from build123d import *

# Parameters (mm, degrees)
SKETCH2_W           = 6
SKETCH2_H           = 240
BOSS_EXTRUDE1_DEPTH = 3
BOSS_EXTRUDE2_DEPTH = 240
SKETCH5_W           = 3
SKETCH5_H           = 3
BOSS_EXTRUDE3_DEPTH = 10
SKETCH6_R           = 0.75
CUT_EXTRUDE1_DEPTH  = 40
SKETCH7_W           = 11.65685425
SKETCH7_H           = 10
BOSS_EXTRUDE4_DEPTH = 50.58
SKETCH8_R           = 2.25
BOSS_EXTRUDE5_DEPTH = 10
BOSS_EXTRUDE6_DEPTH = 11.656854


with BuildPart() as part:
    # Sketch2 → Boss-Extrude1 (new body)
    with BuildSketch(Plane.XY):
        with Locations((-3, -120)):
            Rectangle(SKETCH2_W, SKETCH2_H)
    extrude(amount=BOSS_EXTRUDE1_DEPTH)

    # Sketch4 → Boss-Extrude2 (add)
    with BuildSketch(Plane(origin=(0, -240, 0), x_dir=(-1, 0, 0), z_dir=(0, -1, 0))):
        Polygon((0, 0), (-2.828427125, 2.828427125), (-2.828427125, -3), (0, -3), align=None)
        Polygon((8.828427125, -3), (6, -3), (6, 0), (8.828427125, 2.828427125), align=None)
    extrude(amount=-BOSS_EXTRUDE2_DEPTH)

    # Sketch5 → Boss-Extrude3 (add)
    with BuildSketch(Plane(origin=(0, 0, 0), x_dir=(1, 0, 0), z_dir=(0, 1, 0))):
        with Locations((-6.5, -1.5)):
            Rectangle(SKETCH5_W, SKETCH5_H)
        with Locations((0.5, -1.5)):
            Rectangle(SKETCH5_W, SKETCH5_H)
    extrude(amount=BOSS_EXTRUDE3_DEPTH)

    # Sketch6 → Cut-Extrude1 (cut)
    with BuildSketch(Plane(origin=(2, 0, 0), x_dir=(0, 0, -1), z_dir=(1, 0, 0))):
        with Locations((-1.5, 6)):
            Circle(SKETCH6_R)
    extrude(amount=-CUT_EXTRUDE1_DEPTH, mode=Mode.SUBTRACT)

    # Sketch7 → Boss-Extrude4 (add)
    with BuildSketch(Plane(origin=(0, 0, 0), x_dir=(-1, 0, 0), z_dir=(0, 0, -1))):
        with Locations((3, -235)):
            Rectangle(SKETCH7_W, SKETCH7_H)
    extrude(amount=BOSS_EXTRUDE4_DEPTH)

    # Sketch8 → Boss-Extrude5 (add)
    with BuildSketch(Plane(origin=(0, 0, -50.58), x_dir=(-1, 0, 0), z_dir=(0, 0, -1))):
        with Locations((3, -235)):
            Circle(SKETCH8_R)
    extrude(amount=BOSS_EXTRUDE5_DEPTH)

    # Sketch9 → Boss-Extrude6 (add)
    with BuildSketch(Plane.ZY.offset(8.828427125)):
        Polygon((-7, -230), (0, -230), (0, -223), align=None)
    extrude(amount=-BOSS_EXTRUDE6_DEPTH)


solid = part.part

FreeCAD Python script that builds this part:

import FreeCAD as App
import Part
import Sketcher
from FreeCAD import Vector
Q = App.Units.Quantity


def add_polygon(sketch, points):
    """Adds a closed chain of lines whose ends are joined by coincident constraints."""
    first, n = sketch.GeometryCount, len(points)
    for a, b in zip(points, points[1:] + points[:1]):
        sketch.addGeometry(Part.LineSegment(App.Vector(*a, 0), App.Vector(*b, 0)), False)
    for i in range(n):
        sketch.addConstraint(Sketcher.Constraint("Coincident", first + i, 2, first + (i + 1) % n, 1))

doc = App.newDocument("Part")
body = doc.addObject("PartDesign::Body", "Body")

sketch1 = body.newObject("Sketcher::SketchObject", "Sketch")
sketch1.AttachmentSupport = (doc.getObject("XY_Plane"), [""])
sketch1.MapMode = "FlatFace"
add_polygon(sketch1, [(-6, 0), (-6, -240), (0, -240), (0, 0)])
sketch1.addConstraint(Sketcher.Constraint("Vertical", 0))
sketch1.addConstraint(Sketcher.Constraint("Horizontal", 1))
sketch1.addConstraint(Sketcher.Constraint("Vertical", 2))
sketch1.addConstraint(Sketcher.Constraint("Horizontal", 3))
sketch1.addConstraint(Sketcher.Constraint("Coincident", 2, 2, -1, 1))
sketch1.addConstraint(Sketcher.Constraint("DistanceX", 1, 1, 1, 2, Q("6 mm")))
sketch1.addConstraint(Sketcher.Constraint("DistanceY", 0, 2, 0, 1, Q("240 mm")))
pad1 = body.newObject("PartDesign::Pad", "Pad")
pad1.Profile = sketch1
pad1.Length = 3

sketch2 = body.newObject("Sketcher::SketchObject", "Sketch001")
sketch2.AttachmentSupport = (doc.getObject("XZ_Plane"), [""])
sketch2.MapMode = "FlatFace"
sketch2.AttachmentOffset = App.Placement(Vector(0, 0, 240), App.Rotation())
add_polygon(sketch2, [(0, 0), (2.8, -2.8), (2.8, 3), (0, 3)])
add_polygon(sketch2, [(-6, 3), (-8.8, 3), (-8.8, -2.8), (-6, 0)])
sketch2.addConstraint(Sketcher.Constraint("Vertical", 1))
sketch2.addConstraint(Sketcher.Constraint("Horizontal", 2))
sketch2.addConstraint(Sketcher.Constraint("Vertical", 3))
sketch2.addConstraint(Sketcher.Constraint("Horizontal", 4))
sketch2.addConstraint(Sketcher.Constraint("Vertical", 5))
sketch2.addConstraint(Sketcher.Constraint("Vertical", 7))
sketch2.addConstraint(Sketcher.Constraint("Coincident", 3, 2, -1, 1))
sketch2.addConstraint(Sketcher.Constraint("PointOnObject", 6, 2, -1))
sketch2.addConstraint(Sketcher.Constraint("Perpendicular", 0, 6))
sketch2.addConstraint(Sketcher.Constraint("Horizontal", 2, 2, 4, 2))
sketch2.addConstraint(Sketcher.Constraint("Horizontal", 0, 2, 5, 2))
sketch2.addConstraint(Sketcher.Constraint("Equal", 2, 4))
sketch2.addConstraint(Sketcher.Constraint("DistanceY", 3, 2, 3, 1, Q("3 mm")))
sketch2.addConstraint(Sketcher.Constraint("Distance", 0, Q("4 mm")))
sketch2.addConstraint(Sketcher.Constraint("DistanceX", 6, 2, -1, 1, Q("6 mm")))
pad2 = body.newObject("PartDesign::Pad", "Pad001")
pad2.Profile = sketch2
pad2.Length = 240
pad2.Reversed = True

sketch3 = body.newObject("Sketcher::SketchObject", "Sketch002")
sketch3.AttachmentSupport = (doc.getObject("XZ_Plane"), [""])
sketch3.MapMode = "FlatFace"
add_polygon(sketch3, [(-8, 0), (-8, 3), (-5, 3), (-5, 0)])
add_polygon(sketch3, [(-1, 0), (-1, 3), (2, 3), (2, 0)])
sketch3.addConstraint(Sketcher.Constraint("Vertical", 0))
sketch3.addConstraint(Sketcher.Constraint("Horizontal", 1))
sketch3.addConstraint(Sketcher.Constraint("Vertical", 2))
sketch3.addConstraint(Sketcher.Constraint("Horizontal", 3))
sketch3.addConstraint(Sketcher.Constraint("Vertical", 4))
sketch3.addConstraint(Sketcher.Constraint("Horizontal", 5))
sketch3.addConstraint(Sketcher.Constraint("Vertical", 6))
sketch3.addConstraint(Sketcher.Constraint("Horizontal", 7))
sketch3.addConstraint(Sketcher.Constraint("PointOnObject", 2, 2, -1))
sketch3.addConstraint(Sketcher.Constraint("PointOnObject", 6, 2, -1))
sketch3.addConstraint(Sketcher.Constraint("Horizontal", 1, 2, 4, 2))
sketch3.addConstraint(Sketcher.Constraint("Equal", 3, 5))
sketch3.addConstraint(Sketcher.Constraint("Equal", 7, 0))
sketch3.addConstraint(Sketcher.Constraint("DistanceX", 1, 1, 1, 2, Q("3 mm")))
sketch3.addConstraint(Sketcher.Constraint("DistanceX", 0, 2, -1, 1, Q("8 mm")))
sketch3.addConstraint(Sketcher.Constraint("DistanceX", 4, 2, -1, 1, Q("1 mm")))
pad3 = body.newObject("PartDesign::Pad", "Pad002")
pad3.Profile = sketch3
pad3.Length = 10
pad3.Reversed = True

sketch4 = body.newObject("Sketcher::SketchObject", "Sketch003")
sketch4.AttachmentSupport = (doc.getObject("YZ_Plane"), [""])
sketch4.MapMode = "FlatFace"
sketch4.AttachmentOffset = App.Placement(Vector(0, 0, 2), App.Rotation())
sketch4.addGeometry(Part.Circle(Vector(6, 1.5, 0), Vector(0, 0, 1), 0.8), False)
sketch4.addConstraint(Sketcher.Constraint("Diameter", 0, Q("1.5 mm")))
sketch4.addConstraint(Sketcher.Constraint("DistanceX", -1, 1, 0, 3, Q("6 mm")))
sketch4.addConstraint(Sketcher.Constraint("DistanceY", -1, 1, 0, 3, Q("1.5 mm")))
pocket1 = body.newObject("PartDesign::Pocket", "Pocket")
pocket1.Profile = sketch4
pocket1.Length = 40

sketch5 = body.newObject("Sketcher::SketchObject", "Sketch004")
sketch5.AttachmentSupport = (doc.getObject("XY_Plane"), [""])
sketch5.MapMode = "FlatFace"
add_polygon(sketch5, [(3, -230), (3, -240), (-9, -240), (-9, -230)])
sketch5.addConstraint(Sketcher.Constraint("Vertical", 0))
sketch5.addConstraint(Sketcher.Constraint("Horizontal", 1))
sketch5.addConstraint(Sketcher.Constraint("Vertical", 2))
sketch5.addConstraint(Sketcher.Constraint("Horizontal", 3))
sketch5.addConstraint(Sketcher.Constraint("DistanceY", 0, 2, 0, 1, Q("10 mm")))
sketch5.addConstraint(Sketcher.Constraint("DistanceY", 0, 2, -1, 1, Q("240 mm")))
sketch5.addConstraint(Sketcher.Constraint("DistanceX", 1, 2, 1, 1, Q("11.656854 mm")))
sketch5.addConstraint(Sketcher.Constraint("DistanceX", -1, 1, 0, 2, Q("2.828427 mm")))
pad4 = body.newObject("PartDesign::Pad", "Pad003")
pad4.Profile = sketch5
pad4.Length = 50.58
pad4.Reversed = True

sketch6 = body.newObject("Sketcher::SketchObject", "Sketch005")
sketch6.AttachmentSupport = (doc.getObject("XY_Plane"), [""])
sketch6.MapMode = "FlatFace"
sketch6.AttachmentOffset = App.Placement(Vector(0, 0, -50.58), App.Rotation())
sketch6.addGeometry(Part.Circle(Vector(-3, -235, 0), Vector(0, 0, 1), 2.2), False)
sketch6.addConstraint(Sketcher.Constraint("Diameter", 0, Q("4.5 mm")))
sketch6.addConstraint(Sketcher.Constraint("DistanceX", 0, 3, -1, 1, Q("3 mm")))
sketch6.addConstraint(Sketcher.Constraint("DistanceY", 0, 3, -1, 1, Q("235 mm")))
pad5 = body.newObject("PartDesign::Pad", "Pad004")
pad5.Profile = sketch6
pad5.Length = 10
pad5.Reversed = True

sketch7 = body.newObject("Sketcher::SketchObject", "Sketch006")
sketch7.AttachmentSupport = (doc.getObject("YZ_Plane"), [""])
sketch7.MapMode = "FlatFace"
sketch7.AttachmentOffset = App.Placement(Vector(0, 0, -8.828427), App.Rotation())
add_polygon(sketch7, [(-230, -7), (-230, 0), (-223, 0)])
sketch7.addConstraint(Sketcher.Constraint("Vertical", 0))
sketch7.addConstraint(Sketcher.Constraint("Horizontal", 1))
sketch7.addConstraint(Sketcher.Constraint("PointOnObject", 0, 2, -1))
sketch7.addConstraint(Sketcher.Constraint("Equal", 1, 0))
sketch7.addConstraint(Sketcher.Constraint("DistanceX", 1, 1, 1, 2, Q("7 mm")))
sketch7.addConstraint(Sketcher.Constraint("DistanceX", 0, 2, -1, 1, Q("230 mm")))
pad6 = body.newObject("PartDesign::Pad", "Pad005")
pad6.Profile = sketch7
pad6.Length = 11.656854

doc.recompute()
